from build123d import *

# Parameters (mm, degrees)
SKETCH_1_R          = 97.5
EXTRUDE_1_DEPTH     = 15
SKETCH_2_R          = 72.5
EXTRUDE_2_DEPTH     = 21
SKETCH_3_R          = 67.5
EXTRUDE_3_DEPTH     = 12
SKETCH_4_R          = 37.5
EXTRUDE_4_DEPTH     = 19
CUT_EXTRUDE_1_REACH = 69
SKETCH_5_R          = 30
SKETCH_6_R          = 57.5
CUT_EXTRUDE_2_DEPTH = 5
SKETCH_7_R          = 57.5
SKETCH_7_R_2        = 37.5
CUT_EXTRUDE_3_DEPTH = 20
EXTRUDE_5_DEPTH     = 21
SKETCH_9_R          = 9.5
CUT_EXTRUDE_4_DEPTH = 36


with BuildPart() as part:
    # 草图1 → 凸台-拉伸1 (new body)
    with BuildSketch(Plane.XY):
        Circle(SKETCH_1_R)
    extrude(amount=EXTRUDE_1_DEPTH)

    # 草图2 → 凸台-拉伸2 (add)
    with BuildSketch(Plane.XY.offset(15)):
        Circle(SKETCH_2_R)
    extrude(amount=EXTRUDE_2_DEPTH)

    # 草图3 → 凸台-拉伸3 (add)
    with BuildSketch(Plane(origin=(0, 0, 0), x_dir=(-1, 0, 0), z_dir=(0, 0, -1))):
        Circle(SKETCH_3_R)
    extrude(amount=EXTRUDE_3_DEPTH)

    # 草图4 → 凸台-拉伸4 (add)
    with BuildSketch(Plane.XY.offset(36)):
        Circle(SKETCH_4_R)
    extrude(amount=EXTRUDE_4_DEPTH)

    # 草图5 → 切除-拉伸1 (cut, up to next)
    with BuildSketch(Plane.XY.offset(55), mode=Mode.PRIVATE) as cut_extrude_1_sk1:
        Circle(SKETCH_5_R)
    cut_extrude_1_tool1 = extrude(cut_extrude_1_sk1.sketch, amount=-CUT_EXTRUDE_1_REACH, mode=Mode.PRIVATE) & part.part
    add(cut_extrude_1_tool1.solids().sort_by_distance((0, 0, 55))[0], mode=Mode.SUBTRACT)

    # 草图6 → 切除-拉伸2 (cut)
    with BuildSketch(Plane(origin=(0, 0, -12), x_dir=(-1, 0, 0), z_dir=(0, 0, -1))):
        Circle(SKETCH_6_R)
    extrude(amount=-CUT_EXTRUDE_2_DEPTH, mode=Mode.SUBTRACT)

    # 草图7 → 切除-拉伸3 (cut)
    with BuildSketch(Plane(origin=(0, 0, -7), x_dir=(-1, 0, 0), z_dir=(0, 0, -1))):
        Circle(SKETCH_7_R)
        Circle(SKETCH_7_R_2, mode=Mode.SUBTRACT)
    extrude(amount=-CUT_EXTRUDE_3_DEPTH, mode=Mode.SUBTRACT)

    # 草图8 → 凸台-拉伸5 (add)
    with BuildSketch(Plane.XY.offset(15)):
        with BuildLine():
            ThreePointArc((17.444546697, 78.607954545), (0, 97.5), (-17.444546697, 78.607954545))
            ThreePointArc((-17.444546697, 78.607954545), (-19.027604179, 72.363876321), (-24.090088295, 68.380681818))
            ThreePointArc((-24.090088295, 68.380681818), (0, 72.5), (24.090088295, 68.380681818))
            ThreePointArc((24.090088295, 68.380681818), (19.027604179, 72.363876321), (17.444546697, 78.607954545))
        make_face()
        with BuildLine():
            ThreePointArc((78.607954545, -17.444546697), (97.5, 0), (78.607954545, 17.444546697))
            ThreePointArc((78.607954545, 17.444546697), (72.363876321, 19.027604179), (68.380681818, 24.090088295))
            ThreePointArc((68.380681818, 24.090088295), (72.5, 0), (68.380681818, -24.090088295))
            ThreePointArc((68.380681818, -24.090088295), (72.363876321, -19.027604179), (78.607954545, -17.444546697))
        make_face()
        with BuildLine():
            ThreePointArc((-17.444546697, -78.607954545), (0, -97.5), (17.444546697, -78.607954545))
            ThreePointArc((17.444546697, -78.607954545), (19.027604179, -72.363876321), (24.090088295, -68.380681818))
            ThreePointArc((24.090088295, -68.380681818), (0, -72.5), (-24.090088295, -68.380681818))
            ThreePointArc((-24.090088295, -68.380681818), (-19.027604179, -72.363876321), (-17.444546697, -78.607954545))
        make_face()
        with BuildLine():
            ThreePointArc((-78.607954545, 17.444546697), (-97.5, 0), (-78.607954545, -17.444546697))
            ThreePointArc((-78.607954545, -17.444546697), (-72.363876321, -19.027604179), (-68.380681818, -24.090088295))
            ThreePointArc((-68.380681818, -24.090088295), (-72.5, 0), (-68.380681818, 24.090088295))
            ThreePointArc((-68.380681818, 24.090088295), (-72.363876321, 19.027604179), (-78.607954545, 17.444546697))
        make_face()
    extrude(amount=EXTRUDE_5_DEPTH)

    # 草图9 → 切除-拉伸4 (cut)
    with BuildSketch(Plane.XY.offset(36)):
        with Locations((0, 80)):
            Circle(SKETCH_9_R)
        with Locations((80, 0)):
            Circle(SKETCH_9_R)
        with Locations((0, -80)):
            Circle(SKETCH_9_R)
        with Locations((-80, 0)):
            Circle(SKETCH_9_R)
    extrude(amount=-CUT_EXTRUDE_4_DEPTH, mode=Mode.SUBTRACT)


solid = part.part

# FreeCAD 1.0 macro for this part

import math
import FreeCAD as App
import Part
import Sketcher
from FreeCAD import Vector

doc = App.newDocument("Part")
body = doc.addObject("PartDesign::Body", "Body")

sketch1 = body.newObject("Sketcher::SketchObject", "Sketch")
sketch1.AttachmentSupport = (doc.getObject("XY_Plane"), [""])
sketch1.MapMode = "FlatFace"
sketch1.addGeometry(Part.Circle(Vector(0, 0, 0), Vector(0, 0, 1), 98), False)
sketch1.addConstraint([
    Sketcher.Constraint("Coincident", 0, 3, -1, 1),
    Sketcher.Constraint("Diameter", 0, 195.0),
])
pad1 = body.newObject("PartDesign::Pad", "Pad")
pad1.Profile = sketch1
pad1.Length = 15

sketch2 = body.newObject("Sketcher::SketchObject", "Sketch001")
sketch2.AttachmentSupport = (doc.getObject("XY_Plane"), [""])
sketch2.MapMode = "FlatFace"
sketch2.AttachmentOffset = App.Placement(Vector(0, 0, 15), App.Rotation())
sketch2.addGeometry(Part.Circle(Vector(0, 0, 0), Vector(0, 0, 1), 72), False)
sketch2.addConstraint([
    Sketcher.Constraint("Coincident", 0, 3, -1, 1),
    Sketcher.Constraint("Diameter", 0, 145.0),
])
pad2 = body.newObject("PartDesign::Pad", "Pad001")
pad2.Profile = sketch2
pad2.Length = 21

sketch3 = body.newObject("Sketcher::SketchObject", "Sketch002")
sketch3.AttachmentSupport = (doc.getObject("XY_Plane"), [""])
sketch3.MapMode = "FlatFace"
sketch3.addGeometry(Part.Circle(Vector(0, 0, 0), Vector(0, 0, 1), 68), False)
sketch3.addConstraint([
    Sketcher.Constraint("Coincident", 0, 3, -1, 1),
    Sketcher.Constraint("Diameter", 0, 135.0),
])
pad3 = body.newObject("PartDesign::Pad", "Pad002")
pad3.Profile = sketch3
pad3.Length = 12
pad3.Reversed = True

sketch4 = body.newObject("Sketcher::SketchObject", "Sketch003")
sketch4.AttachmentSupport = (doc.getObject("XY_Plane"), [""])
sketch4.MapMode = "FlatFace"
sketch4.AttachmentOffset = App.Placement(Vector(0, 0, 36), App.Rotation())
sketch4.addGeometry(Part.Circle(Vector(0, 0, 0), Vector(0, 0, 1), 38), False)
sketch4.addConstraint([
    Sketcher.Constraint("Coincident", 0, 3, -1, 1),
    Sketcher.Constraint("Diameter", 0, 75.0),
])
pad4 = body.newObject("PartDesign::Pad", "Pad003")
pad4.Profile = sketch4
pad4.Length = 19

sketch5 = body.newObject("Sketcher::SketchObject", "Sketch004")
sketch5.AttachmentSupport = (doc.getObject("XY_Plane"), [""])
sketch5.MapMode = "FlatFace"
sketch5.AttachmentOffset = App.Placement(Vector(0, 0, 55), App.Rotation())
sketch5.addGeometry(Part.Circle(Vector(0, 0, 0), Vector(0, 0, 1), 30), False)
sketch5.addConstraint([
    Sketcher.Constraint("Coincident", 0, 3, -1, 1),
    Sketcher.Constraint("Diameter", 0, 60.0),
])
pocket1 = body.newObject("PartDesign::Pocket", "Pocket")
pocket1.Profile = sketch5
pocket1.Type = "UpToFirst"

sketch6 = body.newObject("Sketcher::SketchObject", "Sketch005")
sketch6.AttachmentSupport = (doc.getObject("XY_Plane"), [""])
sketch6.MapMode = "FlatFace"
sketch6.AttachmentOffset = App.Placement(Vector(0, 0, -12), App.Rotation())
sketch6.addGeometry(Part.Circle(Vector(0, 0, 0), Vector(0, 0, 1), 58), False)
sketch6.addConstraint([
    Sketcher.Constraint("Coincident", 0, 3, -1, 1),
    Sketcher.Constraint("Diameter", 0, 115.0),
])
pocket2 = body.newObject("PartDesign::Pocket", "Pocket001")
pocket2.Profile = sketch6
pocket2.Length = 5
pocket2.Reversed = True

sketch7 = body.newObject("Sketcher::SketchObject", "Sketch006")
sketch7.AttachmentSupport = (doc.getObject("XY_Plane"), [""])
sketch7.MapMode = "FlatFace"
sketch7.AttachmentOffset = App.Placement(Vector(0, 0, -7), App.Rotation())
sketch7.addGeometry([
    Part.Circle(Vector(0, 0, 0), Vector(0, 0, 1), 58),
    Part.Circle(Vector(0, 0, 0), Vector(0, 0, 1), 38),
], False)
sketch7.addConstraint([
    Sketcher.Constraint("Coincident", 0, 3, -1, 1),
    Sketcher.Constraint("Coincident", 1, 3, -1, 1),
    Sketcher.Constraint("Diameter", 0, 115.0),
    Sketcher.Constraint("Diameter", 1, 75.0),
])
pocket3 = body.newObject("PartDesign::Pocket", "Pocket002")
pocket3.Profile = sketch7
pocket3.Length = 20
pocket3.Reversed = True

sketch8 = body.newObject("Sketcher::SketchObject", "Sketch007")
sketch8.AttachmentSupport = (doc.getObject("XY_Plane"), [""])
sketch8.MapMode = "FlatFace"
sketch8.AttachmentOffset = App.Placement(Vector(0, 0, 15), App.Rotation())
sketch8.addGeometry([
    Part.ArcOfCircle(Part.Circle(Vector(0, 80, 0), Vector(0, 0, 1), 18), math.radians(-5), math.radians(185)),
    Part.ArcOfCircle(Part.Circle(Vector(-27, 78, 0), Vector(0, 0, 1), 10), math.radians(-71), math.radians(5)),
    Part.ArcOfCircle(Part.Circle(Vector(0, 0, 0), Vector(0, 0, 1), 72), math.radians(71), math.radians(109)),
    Part.ArcOfCircle(Part.Circle(Vector(27, 78, 0), Vector(0, 0, 1), 10), math.radians(175), math.radians(251)),
    Part.ArcOfCircle(Part.Circle(Vector(80, 0, 0), Vector(0, 0, 1), 18), math.radians(-95), math.radians(95)),
    Part.ArcOfCircle(Part.Circle(Vector(78, 27, 0), Vector(0, 0, 1), 10), math.radians(-161), math.radians(-85)),
    Part.ArcOfCircle(Part.Circle(Vector(0, 0, 0), Vector(0, 0, 1), 72), math.radians(-19), math.radians(19)),
    Part.ArcOfCircle(Part.Circle(Vector(78, -27, 0), Vector(0, 0, 1), 10), math.radians(85), math.radians(161)),
    Part.ArcOfCircle(Part.Circle(Vector(0, -80, 0), Vector(0, 0, 1), 18), math.radians(175), math.radians(365)),
    Part.ArcOfCircle(Part.Circle(Vector(27, -78, 0), Vector(0, 0, 1), 10), math.radians(109), math.radians(185)),
    Part.ArcOfCircle(Part.Circle(Vector(0, 0, 0), Vector(0, 0, 1), 72), math.radians(-109), math.radians(-71)),
    Part.ArcOfCircle(Part.Circle(Vector(-27, -78, 0), Vector(0, 0, 1), 10), math.radians(-5), math.radians(71)),
    Part.ArcOfCircle(Part.Circle(Vector(-80, 0, 0), Vector(0, 0, 1), 18), math.radians(85), math.radians(275)),
    Part.ArcOfCircle(Part.Circle(Vector(-78, -27, 0), Vector(0, 0, 1), 10), math.radians(19), math.radians(95)),
    Part.ArcOfCircle(Part.Circle(Vector(0, 0, 0), Vector(0, 0, 1), 72), math.radians(161), math.radians(199)),
    Part.ArcOfCircle(Part.Circle(Vector(-78, 27, 0), Vector(0, 0, 1), 10), math.radians(-95), math.radians(-19)),
], False)
sketch8.addConstraint([
    Sketcher.Constraint("Tangent", 0, 2, 1, 2),
    Sketcher.Constraint("Tangent", 1, 1, 2, 2),
    Sketcher.Constraint("Tangent", 2, 1, 3, 2),
    Sketcher.Constraint("Tangent", 3, 1, 0, 1),
    Sketcher.Constraint("Tangent", 4, 2, 5, 2),
    Sketcher.Constraint("Tangent", 5, 1, 6, 2),
    Sketcher.Constraint("Tangent", 6, 1, 7, 2),
    Sketcher.Constraint("Tangent", 7, 1, 4, 1),
    Sketcher.Constraint("Tangent", 8, 2, 9, 2),
    Sketcher.Constraint("Tangent", 9, 1, 10, 2),
    Sketcher.Constraint("Tangent", 10, 1, 11, 2),
    Sketcher.Constraint("Tangent", 11, 1, 8, 1),
    Sketcher.Constraint("Tangent", 12, 2, 13, 2),
    Sketcher.Constraint("Tangent", 13, 1, 14, 2),
    Sketcher.Constraint("Tangent", 14, 1, 15, 2),
    Sketcher.Constraint("Tangent", 15, 1, 12, 1),
    Sketcher.Constraint("Coincident", 2, 3, -1, 1),
    Sketcher.Constraint("Coincident", 6, 3, -1, 1),
    Sketcher.Constraint("Coincident", 10, 3, -1, 1),
    Sketcher.Constraint("Coincident", 14, 3, -1, 1),
    Sketcher.Constraint("Equal", 1, 3),
    Sketcher.Constraint("Equal", 0, 4),
    Sketcher.Constraint("Equal", 3, 5),
    Sketcher.Constraint("Equal", 2, 6),
    Sketcher.Constraint("Equal", 5, 7),
    Sketcher.Constraint("Equal", 4, 8),
    Sketcher.Constraint("Equal", 7, 9),
    Sketcher.Constraint("Equal", 6, 10),
    Sketcher.Constraint("Equal", 9, 11),
    Sketcher.Constraint("Equal", 8, 12),
    Sketcher.Constraint("Equal", 11, 13),
    Sketcher.Constraint("Equal", 10, 14),
    Sketcher.Constraint("Equal", 13, 15),
    Sketcher.Constraint("Symmetric", 0, 3, 8, 3, -1, 1),
    Sketcher.Constraint("Symmetric", 4, 3, 12, 3, -1, 1),
    Sketcher.Constraint("PointOnObject", 0, 3, -2),
    Sketcher.Constraint("PointOnObject", 4, 3, -1),
    Sketcher.Constraint("Radius", 1, 10.0),
    Sketcher.Constraint("Radius", 0, 17.5),
    Sketcher.Constraint("Radius", 2, 72.5),
    Sketcher.Constraint("DistanceY", -1, 1, 0, 3, 80.0),
    Sketcher.Constraint("DistanceX", -1, 1, 4, 3, 80.0),
])
pad5 = body.newObject("PartDesign::Pad", "Pad004")
pad5.Profile = sketch8
pad5.Length = 21

sketch9 = body.newObject("Sketcher::SketchObject", "Sketch008")
sketch9.AttachmentSupport = (doc.getObject("XY_Plane"), [""])
sketch9.MapMode = "FlatFace"
sketch9.AttachmentOffset = App.Placement(Vector(0, 0, 36), App.Rotation())
sketch9.addGeometry([
    Part.Circle(Vector(0, 80, 0), Vector(0, 0, 1), 10),
    Part.Circle(Vector(80, 0, 0), Vector(0, 0, 1), 10),
    Part.Circle(Vector(0, -80, 0), Vector(0, 0, 1), 10),
    Part.Circle(Vector(-80, 0, 0), Vector(0, 0, 1), 10),
], False)
sketch9.addConstraint([
    Sketcher.Constraint("Equal", 0, 1),
    Sketcher.Constraint("Equal", 1, 2),
    Sketcher.Constraint("Equal", 2, 3),
    Sketcher.Constraint("Symmetric", 0, 3, 2, 3, -1, 1),
    Sketcher.Constraint("Symmetric", 1, 3, 3, 3, -1, 1),
    Sketcher.Constraint("PointOnObject", 0, 3, -2),
    Sketcher.Constraint("PointOnObject", 1, 3, -1),
    Sketcher.Constraint("Diameter", 0, 19.0),
    Sketcher.Constraint("DistanceY", -1, 1, 0, 3, 80.0),
    Sketcher.Constraint("DistanceX", -1, 1, 1, 3, 80.0),
])
pocket4 = body.newObject("PartDesign::Pocket", "Pocket003")
pocket4.Profile = sketch9
pocket4.Length = 36

doc.recompute()
